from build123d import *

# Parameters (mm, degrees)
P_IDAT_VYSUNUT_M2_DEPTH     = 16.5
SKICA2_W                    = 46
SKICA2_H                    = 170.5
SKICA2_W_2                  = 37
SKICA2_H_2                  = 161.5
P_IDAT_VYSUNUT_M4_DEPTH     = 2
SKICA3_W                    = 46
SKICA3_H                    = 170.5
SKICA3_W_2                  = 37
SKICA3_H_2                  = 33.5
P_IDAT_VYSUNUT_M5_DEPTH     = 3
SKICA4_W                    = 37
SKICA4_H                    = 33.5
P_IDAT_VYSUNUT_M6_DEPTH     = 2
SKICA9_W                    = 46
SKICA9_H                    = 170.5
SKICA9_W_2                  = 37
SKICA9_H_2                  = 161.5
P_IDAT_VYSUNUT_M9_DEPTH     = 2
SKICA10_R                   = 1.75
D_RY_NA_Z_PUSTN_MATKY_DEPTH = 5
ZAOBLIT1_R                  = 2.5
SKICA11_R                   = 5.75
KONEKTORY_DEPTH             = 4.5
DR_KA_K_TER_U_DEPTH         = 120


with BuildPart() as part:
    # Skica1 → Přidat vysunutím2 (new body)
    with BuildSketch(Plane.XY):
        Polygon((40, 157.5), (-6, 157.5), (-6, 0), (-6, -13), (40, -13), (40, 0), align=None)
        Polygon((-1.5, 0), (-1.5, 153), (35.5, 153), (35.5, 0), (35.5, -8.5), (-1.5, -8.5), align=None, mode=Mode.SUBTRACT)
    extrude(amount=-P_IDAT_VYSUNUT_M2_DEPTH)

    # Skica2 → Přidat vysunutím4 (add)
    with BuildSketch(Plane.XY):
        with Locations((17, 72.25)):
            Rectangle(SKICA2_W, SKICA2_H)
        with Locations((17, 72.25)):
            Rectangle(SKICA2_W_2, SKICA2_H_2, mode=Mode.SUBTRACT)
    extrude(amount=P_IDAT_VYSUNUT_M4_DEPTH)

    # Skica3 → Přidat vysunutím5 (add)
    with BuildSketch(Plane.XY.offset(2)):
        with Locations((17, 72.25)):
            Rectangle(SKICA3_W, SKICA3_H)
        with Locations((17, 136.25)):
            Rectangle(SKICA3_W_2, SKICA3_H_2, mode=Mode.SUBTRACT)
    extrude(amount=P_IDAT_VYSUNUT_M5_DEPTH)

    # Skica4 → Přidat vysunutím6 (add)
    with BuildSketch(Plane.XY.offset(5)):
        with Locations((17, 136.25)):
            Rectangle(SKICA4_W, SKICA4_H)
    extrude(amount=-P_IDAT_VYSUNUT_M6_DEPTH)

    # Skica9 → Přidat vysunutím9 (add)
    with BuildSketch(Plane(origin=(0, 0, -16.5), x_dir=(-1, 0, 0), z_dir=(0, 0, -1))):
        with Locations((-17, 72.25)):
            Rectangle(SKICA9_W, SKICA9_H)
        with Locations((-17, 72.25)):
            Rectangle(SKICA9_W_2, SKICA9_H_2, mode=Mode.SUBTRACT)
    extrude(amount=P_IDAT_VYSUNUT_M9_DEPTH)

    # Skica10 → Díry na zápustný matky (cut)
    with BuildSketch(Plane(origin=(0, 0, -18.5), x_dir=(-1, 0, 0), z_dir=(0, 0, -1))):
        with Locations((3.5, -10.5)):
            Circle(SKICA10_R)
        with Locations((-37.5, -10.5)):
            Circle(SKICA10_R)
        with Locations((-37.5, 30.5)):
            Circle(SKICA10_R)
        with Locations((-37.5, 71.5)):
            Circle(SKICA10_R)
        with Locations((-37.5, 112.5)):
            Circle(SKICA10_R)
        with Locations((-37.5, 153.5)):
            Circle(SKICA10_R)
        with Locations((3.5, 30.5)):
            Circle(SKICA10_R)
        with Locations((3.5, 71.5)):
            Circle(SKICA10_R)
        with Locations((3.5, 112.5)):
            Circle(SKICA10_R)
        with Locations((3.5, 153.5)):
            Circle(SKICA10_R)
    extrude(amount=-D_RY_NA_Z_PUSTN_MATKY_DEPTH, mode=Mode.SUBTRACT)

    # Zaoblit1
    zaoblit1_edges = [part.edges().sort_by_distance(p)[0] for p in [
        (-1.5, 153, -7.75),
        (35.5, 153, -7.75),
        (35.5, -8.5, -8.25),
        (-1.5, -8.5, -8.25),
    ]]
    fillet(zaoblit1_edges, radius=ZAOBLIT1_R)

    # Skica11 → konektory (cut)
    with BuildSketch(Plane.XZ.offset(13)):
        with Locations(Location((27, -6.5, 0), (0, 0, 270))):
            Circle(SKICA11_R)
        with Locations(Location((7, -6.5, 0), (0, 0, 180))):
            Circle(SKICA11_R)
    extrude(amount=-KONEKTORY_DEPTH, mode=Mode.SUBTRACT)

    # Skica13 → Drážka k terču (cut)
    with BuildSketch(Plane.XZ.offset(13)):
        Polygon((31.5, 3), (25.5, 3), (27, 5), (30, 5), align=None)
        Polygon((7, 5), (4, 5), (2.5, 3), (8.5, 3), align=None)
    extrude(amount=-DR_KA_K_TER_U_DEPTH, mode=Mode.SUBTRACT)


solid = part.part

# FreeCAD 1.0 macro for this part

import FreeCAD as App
import Part
import Sketcher

V = App.Vector
Q = App.Units.Quantity


def edges_at(feature, points):
    """Names of the edges that pass closest to the given points."""
    edges = feature.Shape.Edges
    near = lambda p: min(range(len(edges)), key=lambda i: edges[i].distToShape(Part.Vertex(*p))[0])
    return sorted({f"Edge{near(p) + 1}" for p in points})


def add_polygon(sketch, points):
    """Adds a closed chain of lines whose ends are joined by coincident constraints."""
    first, n = sketch.GeometryCount, len(points)
    for a, b in zip(points, points[1:] + points[:1]):
        sketch.addGeometry(Part.LineSegment(App.Vector(*a, 0), App.Vector(*b, 0)), False)
    for i in range(n):
        sketch.addConstraint(Sketcher.Constraint("Coincident", first + i, 2, first + (i + 1) % n, 1))

doc = App.newDocument("Part")
params = doc.addObject("Spreadsheet::Sheet", "Params")
for row, (alias, value) in enumerate([
    ("sketch1_width", "46 mm"),
    ("sketch1_width2", "37 mm"),
    ("sketch1_height", "170.5 mm"),
    ("sketch1_height2", "161.5 mm"),
    ("pad1_length", "16.5 mm"),
    ("sketch2_width", "46 mm"),
    ("sketch2_width2", "37 mm"),
    ("sketch2_height", "170.5 mm"),
    ("sketch2_height2", "161.5 mm"),
    ("pad2_length", "2 mm"),
    ("sketch3_width", "46 mm"),
    ("sketch3_width2", "37 mm"),
    ("sketch3_height", "170.5 mm"),
    ("sketch3_height2", "33.5 mm"),
    ("pad3_length", "3 mm"),
    ("sketch4_width", "37 mm"),
    ("sketch4_height", "33.5 mm"),
    ("pad4_length", "2 mm"),
    ("sketch5_width", "46 mm"),
    ("sketch5_width2", "37 mm"),
    ("sketch5_height", "170.5 mm"),
    ("sketch5_height2", "161.5 mm"),
    ("pad5_length", "2 mm"),
    ("sketch6_diameter", "3.5 mm"),
    ("pocket1_length", "5 mm"),
    ("fillet_radius", "2.5 mm"),
    ("sketch7_diameter", "11.5 mm"),
    ("pocket2_length", "4.5 mm"),
    ("sketch8_width", "6 mm"),
    ("sketch8_width2", "3 mm"),
    ("pocket3_length", "120 mm"),
], start=1):
    params.set(f"A{row}", alias)
    params.set(f"B{row}", "=" + value)
    params.setAlias(f"B{row}", alias)

body = doc.addObject("PartDesign::Body", "Body")

# Sketch on XY plane
sketch1 = body.newObject("Sketcher::SketchObject", "Sketch")
sketch1.AttachmentSupport = (doc.getObject("XY_Plane"), [""])
sketch1.MapMode = "FlatFace"
add_polygon(sketch1, [(40, 158), (-6, 158), (-6, -13), (40, -13)])  # lines 0-3
add_polygon(sketch1, [(-2, -8), (-2, 153), (36, 153), (36, -8)])  # lines 4-7
sketch1.addConstraint([
    Sketcher.Constraint("Horizontal", 0),
    Sketcher.Constraint("Vertical", 1),
    Sketcher.Constraint("Horizontal", 2),
    Sketcher.Constraint("Vertical", 3),
    Sketcher.Constraint("Vertical", 4),
    Sketcher.Constraint("Horizontal", 5),
    Sketcher.Constraint("Vertical", 6),
    Sketcher.Constraint("Horizontal", 7),
    Sketcher.Constraint("DistanceX", 0, 2, 0, 1, Q("46 mm")),
    Sketcher.Constraint("DistanceX", 5, 1, 5, 2, Q("37 mm")),
    Sketcher.Constraint("DistanceY", 1, 2, 1, 1, Q("170.5 mm")),
    Sketcher.Constraint("DistanceY", 4, 1, 4, 2, Q("161.5 mm")),
    Sketcher.Constraint("DistanceX", 0, 2, -1, 1, Q("6 mm")),
    Sketcher.Constraint("DistanceY", 1, 2, -1, 1, Q("13 mm")),
    Sketcher.Constraint("DistanceY", -1, 1, 4, 2, Q("153 mm")),
    Sketcher.Constraint("DistanceX", 4, 2, -1, 1, Q("1.5 mm")),
])
sketch1.setExpression("Constraints[16]", "Params.sketch1_width")
sketch1.setExpression("Constraints[17]", "Params.sketch1_width2")
sketch1.setExpression("Constraints[18]", "Params.sketch1_height")
sketch1.setExpression("Constraints[19]", "Params.sketch1_height2")
pad1 = body.newObject("PartDesign::Pad", "Pad")
pad1.Profile = sketch1
pad1.setExpression("Length", "Params.pad1_length")
pad1.Reversed = True

# Sketch on XY plane
sketch2 = body.newObject("Sketcher::SketchObject", "Sketch001")
sketch2.AttachmentSupport = (doc.getObject("XY_Plane"), [""])
sketch2.MapMode = "FlatFace"
add_polygon(sketch2, [(-6, 158), (-6, -13), (40, -13), (40, 158)])  # lines 0-3
add_polygon(sketch2, [(36, -8), (-2, -8), (-2, 153), (36, 153)])  # lines 4-7
sketch2.addConstraint([
    Sketcher.Constraint("Vertical", 0),
    Sketcher.Constraint("Horizontal", 1),
    Sketcher.Constraint("Vertical", 2),
    Sketcher.Constraint("Horizontal", 3),
    Sketcher.Constraint("Horizontal", 4),
    Sketcher.Constraint("Vertical", 5),
    Sketcher.Constraint("Horizontal", 6),
    Sketcher.Constraint("Vertical", 7),
    Sketcher.Constraint("DistanceX", 1, 1, 1, 2, Q("46 mm")),
    Sketcher.Constraint("DistanceX", 4, 2, 4, 1, Q("37 mm")),
    Sketcher.Constraint("DistanceY", 0, 2, 0, 1, Q("170.5 mm")),
    Sketcher.Constraint("DistanceY", 5, 1, 5, 2, Q("161.5 mm")),
    Sketcher.Constraint("DistanceX", 0, 2, -1, 1, Q("6 mm")),
    Sketcher.Constraint("DistanceY", 0, 2, -1, 1, Q("13 mm")),
    Sketcher.Constraint("DistanceY", -1, 1, 5, 2, Q("153 mm")),
    Sketcher.Constraint("DistanceX", 4, 2, -1, 1, Q("1.5 mm")),
])
sketch2.setExpression("Constraints[16]", "Params.sketch2_width")
sketch2.setExpression("Constraints[17]", "Params.sketch2_width2")
sketch2.setExpression("Constraints[18]", "Params.sketch2_height")
sketch2.setExpression("Constraints[19]", "Params.sketch2_height2")
pad2 = body.newObject("PartDesign::Pad", "Pad001")
pad2.Profile = sketch2
pad2.setExpression("Length", "Params.pad2_length")

# Sketch on XY plane
sketch3 = body.newObject("Sketcher::SketchObject", "Sketch002")
sketch3.AttachmentSupport = (doc.getObject("XY_Plane"), [""])
sketch3.MapMode = "FlatFace"
sketch3.AttachmentOffset = App.Placement(V(0, 0, 2), App.Rotation())
add_polygon(sketch3, [(-6, 158), (-6, -13), (40, -13), (40, 158)])  # lines 0-3
add_polygon(sketch3, [(36, 120), (-2, 120), (-2, 153), (36, 153)])  # lines 4-7
sketch3.addConstraint([
    Sketcher.Constraint("Vertical", 0),
    Sketcher.Constraint("Horizontal", 1),
    Sketcher.Constraint("Vertical", 2),
    Sketcher.Constraint("Horizontal", 3),
    Sketcher.Constraint("Horizontal", 4),
    Sketcher.Constraint("Vertical", 5),
    Sketcher.Constraint("Horizontal", 6),
    Sketcher.Constraint("Vertical", 7),
    Sketcher.Constraint("DistanceX", 1, 1, 1, 2, Q("46 mm")),
    Sketcher.Constraint("DistanceX", 4, 2, 4, 1, Q("37 mm")),
    Sketcher.Constraint("DistanceY", 0, 2, 0, 1, Q("170.5 mm")),
    Sketcher.Constraint("DistanceY", 5, 1, 5, 2, Q("33.5 mm")),
    Sketcher.Constraint("DistanceX", 0, 2, -1, 1, Q("6 mm")),
    Sketcher.Constraint("DistanceY", 0, 2, -1, 1, Q("13 mm")),
    Sketcher.Constraint("DistanceY", -1, 1, 5, 2, Q("153 mm")),
    Sketcher.Constraint("DistanceX", 4, 2, -1, 1, Q("1.5 mm")),
])
sketch3.setExpression("Constraints[16]", "Params.sketch3_width")
sketch3.setExpression("Constraints[17]", "Params.sketch3_width2")
sketch3.setExpression("Constraints[18]", "Params.sketch3_height")
sketch3.setExpression("Constraints[19]", "Params.sketch3_height2")
pad3 = body.newObject("PartDesign::Pad", "Pad002")
pad3.Profile = sketch3
pad3.setExpression("Length", "Params.pad3_length")

# Sketch on XY plane
sketch4 = body.newObject("Sketcher::SketchObject", "Sketch003")
sketch4.AttachmentSupport = (doc.getObject("XY_Plane"), [""])
sketch4.MapMode = "FlatFace"
sketch4.AttachmentOffset = App.Placement(V(0, 0, 5), App.Rotation())
add_polygon(sketch4, [(-2, 153), (-2, 120), (36, 120), (36, 153)])  # lines 0-3
sketch4.addConstraint([
    Sketcher.Constraint("Vertical", 0),
    Sketcher.Constraint("Horizontal", 1),
    Sketcher.Constraint("Vertical", 2),
    Sketcher.Constraint("Horizontal", 3),
    Sketcher.Constraint("DistanceX", 1, 1, 1, 2, Q("37 mm")),
    Sketcher.Constraint("DistanceY", 0, 2, 0, 1, Q("33.5 mm")),
    Sketcher.Constraint("DistanceY", -1, 1, 2, 2, Q("153 mm")),
    Sketcher.Constraint("DistanceX", 0, 2, -1, 1, Q("1.5 mm")),
])
sketch4.setExpression("Constraints[8]", "Params.sketch4_width")
sketch4.setExpression("Constraints[9]", "Params.sketch4_height")
pad4 = body.newObject("PartDesign::Pad", "Pad003")
pad4.Profile = sketch4
pad4.setExpression("Length", "Params.pad4_length")
pad4.Reversed = True

# Sketch on XY plane
sketch5 = body.newObject("Sketcher::SketchObject", "Sketch004")
sketch5.AttachmentSupport = (doc.getObject("XY_Plane"), [""])
sketch5.MapMode = "FlatFace"
sketch5.AttachmentOffset = App.Placement(V(0, 0, -16.5), App.Rotation())
add_polygon(sketch5, [(40, 158), (40, -13), (-6, -13), (-6, 158)])  # lines 0-3
add_polygon(sketch5, [(-2, -8), (36, -8), (36, 153), (-2, 153)])  # lines 4-7
sketch5.addConstraint([
    Sketcher.Constraint("Vertical", 0),
    Sketcher.Constraint("Horizontal", 1),
    Sketcher.Constraint("Vertical", 2),
    Sketcher.Constraint("Horizontal", 3),
    Sketcher.Constraint("Horizontal", 4),
    Sketcher.Constraint("Vertical", 5),
    Sketcher.Constraint("Horizontal", 6),
    Sketcher.Constraint("Vertical", 7),
    Sketcher.Constraint("DistanceX", 1, 2, 1, 1, Q("46 mm")),
    Sketcher.Constraint("DistanceX", 4, 1, 4, 2, Q("37 mm")),
    Sketcher.Constraint("DistanceY", 0, 2, 0, 1, Q("170.5 mm")),
    Sketcher.Constraint("DistanceY", 5, 1, 5, 2, Q("161.5 mm")),
    Sketcher.Constraint("DistanceX", -1, 1, 0, 2, Q("40 mm")),
    Sketcher.Constraint("DistanceY", 0, 2, -1, 1, Q("13 mm")),
    Sketcher.Constraint("DistanceY", -1, 1, 5, 2, Q("153 mm")),
    Sketcher.Constraint("DistanceX", -1, 1, 4, 2, Q("35.5 mm")),
])
sketch5.setExpression("Constraints[16]", "Params.sketch5_width")
sketch5.setExpression("Constraints[17]", "Params.sketch5_width2")
sketch5.setExpression("Constraints[18]", "Params.sketch5_height")
sketch5.setExpression("Constraints[19]", "Params.sketch5_height2")
pad5 = body.newObject("PartDesign::Pad", "Pad004")
pad5.Profile = sketch5
pad5.setExpression("Length", "Params.pad5_length")
pad5.Reversed = True

# Sketch on XY plane
sketch6 = body.newObject("Sketcher::SketchObject", "Sketch005")
sketch6.AttachmentSupport = (doc.getObject("XY_Plane"), [""])
sketch6.MapMode = "FlatFace"
sketch6.AttachmentOffset = App.Placement(V(0, 0, -18.5), App.Rotation())
sketch6.addGeometry([
    Part.Circle(V(-3.5, -10.5, 0), V(0, 0, 1), 1.8),  # 0
    Part.Circle(V(37.5, -10.5, 0), V(0, 0, 1), 1.8),  # 1
    Part.Circle(V(37.5, 30.5, 0), V(0, 0, 1), 1.8),  # 2
    Part.Circle(V(37.5, 71.5, 0), V(0, 0, 1), 1.8),  # 3
    Part.Circle(V(37.5, 112.5, 0), V(0, 0, 1), 1.8),  # 4
    Part.Circle(V(37.5, 153.5, 0), V(0, 0, 1), 1.8),  # 5
    Part.Circle(V(-3.5, 30.5, 0), V(0, 0, 1), 1.8),  # 6
    Part.Circle(V(-3.5, 71.5, 0), V(0, 0, 1), 1.8),  # 7
    Part.Circle(V(-3.5, 112.5, 0), V(0, 0, 1), 1.8),  # 8
    Part.Circle(V(-3.5, 153.5, 0), V(0, 0, 1), 1.8),  # 9
], False)
sketch6.addConstraint([
    Sketcher.Constraint("Equal", 0, 1),
    Sketcher.Constraint("Equal", 1, 2),
    Sketcher.Constraint("Equal", 2, 3),
    Sketcher.Constraint("Equal", 3, 4),
    Sketcher.Constraint("Equal", 4, 5),
    Sketcher.Constraint("Equal", 5, 6),
    Sketcher.Constraint("Equal", 6, 7),
    Sketcher.Constraint("Equal", 7, 8),
    Sketcher.Constraint("Equal", 8, 9),
    Sketcher.Constraint("Horizontal", 0, 3, 1, 3),
    Sketcher.Constraint("Horizontal", 2, 3, 6, 3),
    Sketcher.Constraint("Horizontal", 3, 3, 7, 3),
    Sketcher.Constraint("Horizontal", 4, 3, 8, 3),
    Sketcher.Constraint("Horizontal", 5, 3, 9, 3),
    Sketcher.Constraint("Vertical", 1, 3, 2, 3),
    Sketcher.Constraint("Vertical", 2, 3, 3, 3),
    Sketcher.Constraint("Vertical", 3, 3, 4, 3),
    Sketcher.Constraint("Vertical", 4, 3, 5, 3),
    Sketcher.Constraint("Vertical", 0, 3, 6, 3),
    Sketcher.Constraint("Vertical", 6, 3, 7, 3),
    Sketcher.Constraint("Vertical", 7, 3, 8, 3),
    Sketcher.Constraint("Vertical", 8, 3, 9, 3),
    Sketcher.Constraint("Diameter", 0, Q("3.5 mm")),
    Sketcher.Constraint("DistanceX", 0, 3, 1, 3, Q("41 mm")),
    Sketcher.Constraint("DistanceY", 1, 3, 2, 3, Q("41 mm")),
    Sketcher.Constraint("DistanceY", 2, 3, 3, 3, Q("41 mm")),
    Sketcher.Constraint("DistanceY", 3, 3, 4, 3, Q("41 mm")),
    Sketcher.Constraint("DistanceY", 4, 3, 5, 3, Q("41 mm")),
    Sketcher.Constraint("DistanceX", 0, 3, -1, 1, Q("3.5 mm")),
    Sketcher.Constraint("DistanceY", 0, 3, -1, 1, Q("10.5 mm")),
])
sketch6.setExpression("Constraints[22]", "Params.sketch6_diameter")
pocket1 = body.newObject("PartDesign::Pocket", "Pocket")
pocket1.Profile = sketch6
pocket1.setExpression("Length", "Params.pocket1_length")
pocket1.Reversed = True
doc.recompute()

fillet = body.newObject("PartDesign::Fillet", "Fillet")
fillet.Base = (pocket1, edges_at(pocket1, [
    (-1.5, 153, -7.75),
    (35.5, 153, -7.75),
    (35.5, -8.5, -8.25),
    (-1.5, -8.5, -8.25),
]))
fillet.setExpression("Radius", "Params.fillet_radius")

# Sketch on XZ plane
sketch7 = body.newObject("Sketcher::SketchObject", "Sketch006")
sketch7.AttachmentSupport = (doc.getObject("XZ_Plane"), [""])
sketch7.MapMode = "FlatFace"
sketch7.AttachmentOffset = App.Placement(V(0, 0, 13), App.Rotation())
sketch7.addGeometry([
    Part.Circle(V(27, -6, 0), V(0, 0, 1), 6),
    Part.Circle(V(7, -6, 0), V(0, 0, 1), 6),
], False)
sketch7.addConstraint([
    Sketcher.Constraint("Equal", 0, 1),
    Sketcher.Constraint("Horizontal", 0, 3, 1, 3),
    Sketcher.Constraint("Diameter", 0, Q("11.5 mm")),
    Sketcher.Constraint("DistanceX", -1, 1, 0, 3, Q("27 mm")),
    Sketcher.Constraint("DistanceX", -1, 1, 1, 3, Q("7 mm")),
    Sketcher.Constraint("DistanceY", 0, 3, -1, 1, Q("6.5 mm")),
])
sketch7.setExpression("Constraints[2]", "Params.sketch7_diameter")
pocket2 = body.newObject("PartDesign::Pocket", "Pocket001")
pocket2.Profile = sketch7
pocket2.setExpression("Length", "Params.pocket2_length")

# Sketch on XZ plane
sketch8 = body.newObject("Sketcher::SketchObject", "Sketch007")
sketch8.AttachmentSupport = (doc.getObject("XZ_Plane"), [""])
sketch8.MapMode = "FlatFace"
sketch8.AttachmentOffset = App.Placement(V(0, 0, 13), App.Rotation())
add_polygon(sketch8, [(25.5, 3), (31.5, 3), (30, 5), (27, 5)])  # lines 0-3
add_polygon(sketch8, [(7, 5), (4, 5), (2.5, 3), (8.5, 3)])  # lines 4-7
sketch8.addConstraint([
    Sketcher.Constraint("Horizontal", 0),
    Sketcher.Constraint("Horizontal", 2),
    Sketcher.Constraint("Horizontal", 4),
    Sketcher.Constraint("Horizontal", 6),
    Sketcher.Constraint("Parallel", 3, 5),
    Sketcher.Constraint("Parallel", 1, 7),
    Sketcher.Constraint("Horizontal", 2, 2, 4, 2),
    Sketcher.Constraint("Horizontal", 3, 2, 5, 2),
    Sketcher.Constraint("Equal", 2, 4),
    Sketcher.Constraint("Equal", 1, 3),
    Sketcher.Constraint("DistanceX", 0, 1, 0, 2, Q("6 mm")),
    Sketcher.Constraint("DistanceX", 2, 2, 2, 1, Q("3 mm")),
    Sketcher.Constraint("DistanceY", -1, 1, 0, 2, Q("3 mm")),
    Sketcher.Constraint("DistanceX", -1, 1, 1, 2, Q("30 mm")),
    Sketcher.Constraint("DistanceY", -1, 1, 1, 2, Q("5 mm")),
    Sketcher.Constraint("DistanceX", -1, 1, 4, 2, Q("4 mm")),
])
sketch8.setExpression("Constraints[18]", "Params.sketch8_width")
sketch8.setExpression("Constraints[19]", "Params.sketch8_width2")
pocket3 = body.newObject("PartDesign::Pocket", "Pocket002")
pocket3.Profile = sketch8
pocket3.setExpression("Length", "Params.pocket3_length")

doc.recompute()
